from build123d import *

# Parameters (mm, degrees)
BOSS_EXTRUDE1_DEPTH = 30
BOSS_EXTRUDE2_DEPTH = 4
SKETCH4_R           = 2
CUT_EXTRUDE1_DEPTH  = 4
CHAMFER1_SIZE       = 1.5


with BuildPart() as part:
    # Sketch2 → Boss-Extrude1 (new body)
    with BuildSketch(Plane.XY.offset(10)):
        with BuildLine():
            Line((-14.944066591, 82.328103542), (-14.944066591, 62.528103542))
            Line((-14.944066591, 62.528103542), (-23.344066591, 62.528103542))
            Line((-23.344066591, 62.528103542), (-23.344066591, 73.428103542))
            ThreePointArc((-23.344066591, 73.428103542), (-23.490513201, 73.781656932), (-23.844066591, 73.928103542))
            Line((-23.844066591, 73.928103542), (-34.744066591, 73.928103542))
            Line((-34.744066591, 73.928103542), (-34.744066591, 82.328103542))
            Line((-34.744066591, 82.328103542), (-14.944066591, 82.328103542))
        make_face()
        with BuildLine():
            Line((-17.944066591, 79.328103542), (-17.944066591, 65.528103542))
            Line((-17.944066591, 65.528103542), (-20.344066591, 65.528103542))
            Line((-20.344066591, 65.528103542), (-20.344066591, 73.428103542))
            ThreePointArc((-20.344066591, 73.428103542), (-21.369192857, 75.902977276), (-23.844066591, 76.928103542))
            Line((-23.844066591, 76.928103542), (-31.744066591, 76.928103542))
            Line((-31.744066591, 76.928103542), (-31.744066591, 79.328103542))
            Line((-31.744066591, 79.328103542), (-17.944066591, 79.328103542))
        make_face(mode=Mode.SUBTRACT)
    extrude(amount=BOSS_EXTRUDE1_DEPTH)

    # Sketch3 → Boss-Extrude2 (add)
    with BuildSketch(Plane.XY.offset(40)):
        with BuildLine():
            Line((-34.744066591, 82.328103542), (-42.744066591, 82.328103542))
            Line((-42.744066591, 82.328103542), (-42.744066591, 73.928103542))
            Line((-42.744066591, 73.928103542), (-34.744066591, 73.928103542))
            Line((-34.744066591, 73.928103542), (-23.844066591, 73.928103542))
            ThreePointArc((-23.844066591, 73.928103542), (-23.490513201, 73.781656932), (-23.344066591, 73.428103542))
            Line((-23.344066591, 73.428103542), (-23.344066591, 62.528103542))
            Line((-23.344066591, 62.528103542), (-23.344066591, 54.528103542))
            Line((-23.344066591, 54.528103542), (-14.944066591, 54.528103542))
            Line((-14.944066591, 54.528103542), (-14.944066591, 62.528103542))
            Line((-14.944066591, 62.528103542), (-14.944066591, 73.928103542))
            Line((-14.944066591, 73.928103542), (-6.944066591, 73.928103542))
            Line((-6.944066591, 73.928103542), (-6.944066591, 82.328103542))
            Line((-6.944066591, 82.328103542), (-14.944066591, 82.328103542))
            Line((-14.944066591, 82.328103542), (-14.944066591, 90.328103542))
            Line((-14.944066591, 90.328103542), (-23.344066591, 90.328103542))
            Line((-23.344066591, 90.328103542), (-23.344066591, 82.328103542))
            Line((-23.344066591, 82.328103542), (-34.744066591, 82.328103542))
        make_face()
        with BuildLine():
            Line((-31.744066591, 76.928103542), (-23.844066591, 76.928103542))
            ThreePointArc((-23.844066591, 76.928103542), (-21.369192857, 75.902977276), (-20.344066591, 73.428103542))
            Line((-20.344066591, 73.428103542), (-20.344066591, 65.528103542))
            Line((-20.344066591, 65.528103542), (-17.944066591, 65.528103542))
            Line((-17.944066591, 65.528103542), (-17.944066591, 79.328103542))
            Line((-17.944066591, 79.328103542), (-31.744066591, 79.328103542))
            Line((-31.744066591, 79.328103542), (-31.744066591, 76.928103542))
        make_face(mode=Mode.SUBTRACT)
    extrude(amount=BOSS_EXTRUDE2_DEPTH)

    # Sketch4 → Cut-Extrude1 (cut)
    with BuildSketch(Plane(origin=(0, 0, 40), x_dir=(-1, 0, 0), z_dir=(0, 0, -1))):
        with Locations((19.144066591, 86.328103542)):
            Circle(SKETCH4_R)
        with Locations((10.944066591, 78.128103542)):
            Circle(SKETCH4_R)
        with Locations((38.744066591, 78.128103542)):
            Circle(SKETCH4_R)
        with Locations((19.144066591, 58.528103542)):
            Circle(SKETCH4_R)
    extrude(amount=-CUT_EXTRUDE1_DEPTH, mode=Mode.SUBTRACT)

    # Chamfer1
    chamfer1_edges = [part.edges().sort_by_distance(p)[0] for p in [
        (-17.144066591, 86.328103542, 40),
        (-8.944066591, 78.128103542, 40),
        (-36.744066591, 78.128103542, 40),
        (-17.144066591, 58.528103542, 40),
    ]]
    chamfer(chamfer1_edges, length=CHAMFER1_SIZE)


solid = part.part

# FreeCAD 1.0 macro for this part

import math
import FreeCAD as App
import Part
import Sketcher
from FreeCAD import Vector


def edges_at(feature, points):
    """Names of the edges that pass closest to the given points."""
    edges = feature.Shape.Edges
    near = lambda p: min(range(len(edges)), key=lambda i: edges[i].distToShape(Part.Vertex(*p))[0])
    return sorted({f"Edge{near(p) + 1}" for p in points})

doc = App.newDocument("Part")
params = doc.addObject("Spreadsheet::Sheet", "Params")
for row, (alias, value) in enumerate([
    ("sketch1_radius", "0.5 mm"),
    ("sketch1_radius2", "3.5 mm"),
    ("sketch1_width", "19.8 mm"),
    ("sketch1_width2", "10.9 mm"),
    ("sketch1_width3", "2.4 mm"),
    ("pad1_length", "30 mm"),
    ("sketch2_radius", "0.5 mm"),
    ("sketch2_radius2", "3.5 mm"),
    ("sketch2_width", "8 mm"),
    ("sketch2_width2", "18.9 mm"),
    ("sketch2_width3", "8.4 mm"),
    ("pad2_length", "4 mm"),
    ("sketch3_diameter", "4 mm"),
    ("pocket1_length", "4 mm"),
    ("chamfer_size", "1.5 mm"),
], start=1):
    params.set(f"A{row}", alias)
    params.set(f"B{row}", "=" + value)
    params.setAlias(f"B{row}", alias)

body = doc.addObject("PartDesign::Body", "Body")

# Sketch on XY plane
sketch1 = body.newObject("Sketcher::SketchObject", "Sketch")
sketch1.AttachmentSupport = (doc.getObject("XY_Plane"), [""])
sketch1.MapMode = "FlatFace"
sketch1.AttachmentOffset = App.Placement(Vector(0, 0, 10), App.Rotation())
sketch1.addGeometry(Part.LineSegment(Vector(-14.9, 62.5, 0), Vector(-14.9, 82.3, 0)), False)
sketch1.addGeometry(Part.LineSegment(Vector(-14.9, 82.3, 0), Vector(-34.7, 82.3, 0)), False)
sketch1.addGeometry(Part.LineSegment(Vector(-34.7, 82.3, 0), Vector(-34.7, 73.9, 0)), False)
sketch1.addGeometry(Part.LineSegment(Vector(-34.7, 73.9, 0), Vector(-23.8, 73.9, 0)), False)
sketch1.addGeometry(Part.ArcOfCircle(Part.Circle(Vector(-23.8, 73.4, 0), Vector(0, 0, 1), 0.5), math.radians(0), math.radians(90)), False)
sketch1.addGeometry(Part.LineSegment(Vector(-23.3, 73.4, 0), Vector(-23.3, 62.5, 0)), False)
sketch1.addGeometry(Part.LineSegment(Vector(-23.3, 62.5, 0), Vector(-14.9, 62.5, 0)), False)
sketch1.addGeometry(Part.LineSegment(Vector(-17.9, 79.3, 0), Vector(-17.9, 65.5, 0)), False)
sketch1.addGeometry(Part.LineSegment(Vector(-17.9, 65.5, 0), Vector(-20.3, 65.5, 0)), False)
sketch1.addGeometry(Part.LineSegment(Vector(-20.3, 65.5, 0), Vector(-20.3, 73.4, 0)), False)
sketch1.addGeometry(Part.ArcOfCircle(Part.Circle(Vector(-23.8, 73.4, 0), Vector(0, 0, 1), 3.5), math.radians(0), math.radians(90)), False)
sketch1.addGeometry(Part.LineSegment(Vector(-23.8, 76.9, 0), Vector(-31.7, 76.9, 0)), False)
sketch1.addGeometry(Part.LineSegment(Vector(-31.7, 76.9, 0), Vector(-31.7, 79.3, 0)), False)
sketch1.addGeometry(Part.LineSegment(Vector(-31.7, 79.3, 0), Vector(-17.9, 79.3, 0)), False)
sketch1.addConstraint(Sketcher.Constraint("Coincident", 0, 2, 1, 1))
sketch1.addConstraint(Sketcher.Constraint("Coincident", 1, 2, 2, 1))
sketch1.addConstraint(Sketcher.Constraint("Coincident", 2, 2, 3, 1))
sketch1.addConstraint(Sketcher.Constraint("Tangent", 3, 2, 4, 2))
sketch1.addConstraint(Sketcher.Constraint("Tangent", 4, 1, 5, 1))
sketch1.addConstraint(Sketcher.Constraint("Coincident", 5, 2, 6, 1))
sketch1.addConstraint(Sketcher.Constraint("Coincident", 6, 2, 0, 1))
sketch1.addConstraint(Sketcher.Constraint("Coincident", 7, 2, 8, 1))
sketch1.addConstraint(Sketcher.Constraint("Coincident", 8, 2, 9, 1))
sketch1.addConstraint(Sketcher.Constraint("Tangent", 9, 2, 10, 1))
sketch1.addConstraint(Sketcher.Constraint("Tangent", 10, 2, 11, 1))
sketch1.addConstraint(Sketcher.Constraint("Coincident", 11, 2, 12, 1))
sketch1.addConstraint(Sketcher.Constraint("Coincident", 12, 2, 13, 1))
sketch1.addConstraint(Sketcher.Constraint("Coincident", 13, 2, 7, 1))
sketch1.addConstraint(Sketcher.Constraint("Vertical", 0))
sketch1.addConstraint(Sketcher.Constraint("Horizontal", 1))
sketch1.addConstraint(Sketcher.Constraint("Vertical", 2))
sketch1.addConstraint(Sketcher.Constraint("Horizontal", 3))
sketch1.addConstraint(Sketcher.Constraint("Vertical", 5))
sketch1.addConstraint(Sketcher.Constraint("Horizontal", 6))
sketch1.addConstraint(Sketcher.Constraint("Vertical", 7))
sketch1.addConstraint(Sketcher.Constraint("Horizontal", 8))
sketch1.addConstraint(Sketcher.Constraint("Vertical", 9))
sketch1.addConstraint(Sketcher.Constraint("Horizontal", 11))
sketch1.addConstraint(Sketcher.Constraint("Vertical", 12))
sketch1.addConstraint(Sketcher.Constraint("Horizontal", 13))
sketch1.addConstraint(Sketcher.Constraint("Coincident", 10, 3, 4, 3))
sketch1.addConstraint(Sketcher.Constraint("Equal", 1, 0))
sketch1.addConstraint(Sketcher.Constraint("Equal", 6, 2))
sketch1.addConstraint(Sketcher.Constraint("Equal", 13, 7))
sketch1.addConstraint(Sketcher.Constraint("Equal", 11, 9))
sketch1.addConstraint(Sketcher.Constraint("Radius", 4, 0.5))
sketch1.addConstraint(Sketcher.Constraint("Radius", 10, 3.5))
sketch1.addConstraint(Sketcher.Constraint("DistanceX", 1, 2, 1, 1, 19.8))
sketch1.addConstraint(Sketcher.Constraint("DistanceX", 3, 1, 3, 2, 10.9))
sketch1.addConstraint(Sketcher.Constraint("DistanceX", 8, 2, 8, 1, 2.4))
sketch1.addConstraint(Sketcher.Constraint("DistanceX", 11, 2, 11, 1, 7.9))
sketch1.addConstraint(Sketcher.Constraint("DistanceX", 4, 3, -1, 1, 23.844067))
sketch1.addConstraint(Sketcher.Constraint("DistanceY", -1, 1, 4, 3, 73.428104))
sketch1.setExpression("Constraints[31]", "Params.sketch1_radius")
sketch1.setExpression("Constraints[32]", "Params.sketch1_radius2")
sketch1.setExpression("Constraints[33]", "Params.sketch1_width")
sketch1.setExpression("Constraints[34]", "Params.sketch1_width2")
sketch1.setExpression("Constraints[35]", "Params.sketch1_width3")
pad1 = body.newObject("PartDesign::Pad", "Pad")
pad1.Profile = sketch1
pad1.setExpression("Length", "Params.pad1_length")

# Sketch on XY plane
sketch2 = body.newObject("Sketcher::SketchObject", "Sketch001")
sketch2.AttachmentSupport = (doc.getObject("XY_Plane"), [""])
sketch2.MapMode = "FlatFace"
sketch2.AttachmentOffset = App.Placement(Vector(0, 0, 40), App.Rotation())
sketch2.addGeometry(Part.LineSegment(Vector(-42.7, 82.3, 0), Vector(-42.7, 73.9, 0)), False)
sketch2.addGeometry(Part.LineSegment(Vector(-42.7, 73.9, 0), Vector(-23.8, 73.9, 0)), False)
sketch2.addGeometry(Part.ArcOfCircle(Part.Circle(Vector(-23.8, 73.4, 0), Vector(0, 0, 1), 0.5), math.radians(0), math.radians(90)), False)
sketch2.addGeometry(Part.LineSegment(Vector(-23.3, 73.4, 0), Vector(-23.3, 54.5, 0)), False)
sketch2.addGeometry(Part.LineSegment(Vector(-23.3, 54.5, 0), Vector(-14.9, 54.5, 0)), False)
sketch2.addGeometry(Part.LineSegment(Vector(-14.9, 54.5, 0), Vector(-14.9, 73.9, 0)), False)
sketch2.addGeometry(Part.LineSegment(Vector(-14.9, 73.9, 0), Vector(-6.9, 73.9, 0)), False)
sketch2.addGeometry(Part.LineSegment(Vector(-6.9, 73.9, 0), Vector(-6.9, 82.3, 0)), False)
sketch2.addGeometry(Part.LineSegment(Vector(-6.9, 82.3, 0), Vector(-14.9, 82.3, 0)), False)
sketch2.addGeometry(Part.LineSegment(Vector(-14.9, 82.3, 0), Vector(-14.9, 90.3, 0)), False)
sketch2.addGeometry(Part.LineSegment(Vector(-14.9, 90.3, 0), Vector(-23.3, 90.3, 0)), False)
sketch2.addGeometry(Part.LineSegment(Vector(-23.3, 90.3, 0), Vector(-23.3, 82.3, 0)), False)
sketch2.addGeometry(Part.LineSegment(Vector(-23.3, 82.3, 0), Vector(-42.7, 82.3, 0)), False)
sketch2.addGeometry(Part.LineSegment(Vector(-23.8, 76.9, 0), Vector(-31.7, 76.9, 0)), False)
sketch2.addGeometry(Part.LineSegment(Vector(-31.7, 76.9, 0), Vector(-31.7, 79.3, 0)), False)
sketch2.addGeometry(Part.LineSegment(Vector(-31.7, 79.3, 0), Vector(-17.9, 79.3, 0)), False)
sketch2.addGeometry(Part.LineSegment(Vector(-17.9, 79.3, 0), Vector(-17.9, 65.5, 0)), False)
sketch2.addGeometry(Part.LineSegment(Vector(-17.9, 65.5, 0), Vector(-20.3, 65.5, 0)), False)
sketch2.addGeometry(Part.LineSegment(Vector(-20.3, 65.5, 0), Vector(-20.3, 73.4, 0)), False)
sketch2.addGeometry(Part.ArcOfCircle(Part.Circle(Vector(-23.8, 73.4, 0), Vector(0, 0, 1), 3.5), math.radians(0), math.radians(90)), False)
sketch2.addConstraint(Sketcher.Constraint("Coincident", 0, 2, 1, 1))
sketch2.addConstraint(Sketcher.Constraint("Tangent", 1, 2, 2, 2))
sketch2.addConstraint(Sketcher.Constraint("Tangent", 2, 1, 3, 1))
sketch2.addConstraint(Sketcher.Constraint("Coincident", 3, 2, 4, 1))
sketch2.addConstraint(Sketcher.Constraint("Coincident", 4, 2, 5, 1))
sketch2.addConstraint(Sketcher.Constraint("Coincident", 5, 2, 6, 1))
sketch2.addConstraint(Sketcher.Constraint("Coincident", 6, 2, 7, 1))
sketch2.addConstraint(Sketcher.Constraint("Coincident", 7, 2, 8, 1))
sketch2.addConstraint(Sketcher.Constraint("Coincident", 8, 2, 9, 1))
sketch2.addConstraint(Sketcher.Constraint("Coincident", 9, 2, 10, 1))
sketch2.addConstraint(Sketcher.Constraint("Coincident", 10, 2, 11, 1))
sketch2.addConstraint(Sketcher.Constraint("Coincident", 11, 2, 12, 1))
sketch2.addConstraint(Sketcher.Constraint("Coincident", 12, 2, 0, 1))
sketch2.addConstraint(Sketcher.Constraint("Coincident", 13, 2, 14, 1))
sketch2.addConstraint(Sketcher.Constraint("Coincident", 14, 2, 15, 1))
sketch2.addConstraint(Sketcher.Constraint("Coincident", 15, 2, 16, 1))
sketch2.addConstraint(Sketcher.Constraint("Coincident", 16, 2, 17, 1))
sketch2.addConstraint(Sketcher.Constraint("Coincident", 17, 2, 18, 1))
sketch2.addConstraint(Sketcher.Constraint("Tangent", 18, 2, 19, 1))
sketch2.addConstraint(Sketcher.Constraint("Tangent", 19, 2, 13, 1))
sketch2.addConstraint(Sketcher.Constraint("Vertical", 0))
sketch2.addConstraint(Sketcher.Constraint("Horizontal", 1))
sketch2.addConstraint(Sketcher.Constraint("Vertical", 3))
sketch2.addConstraint(Sketcher.Constraint("Horizontal", 4))
sketch2.addConstraint(Sketcher.Constraint("Vertical", 5))
sketch2.addConstraint(Sketcher.Constraint("Horizontal", 6))
sketch2.addConstraint(Sketcher.Constraint("Vertical", 7))
sketch2.addConstraint(Sketcher.Constraint("Horizontal", 8))
sketch2.addConstraint(Sketcher.Constraint("Vertical", 9))
sketch2.addConstraint(Sketcher.Constraint("Horizontal", 10))
sketch2.addConstraint(Sketcher.Constraint("Vertical", 11))
sketch2.addConstraint(Sketcher.Constraint("Horizontal", 12))
sketch2.addConstraint(Sketcher.Constraint("Horizontal", 13))
sketch2.addConstraint(Sketcher.Constraint("Vertical", 14))
sketch2.addConstraint(Sketcher.Constraint("Horizontal", 15))
sketch2.addConstraint(Sketcher.Constraint("Vertical", 16))
sketch2.addConstraint(Sketcher.Constraint("Horizontal", 17))
sketch2.addConstraint(Sketcher.Constraint("Vertical", 18))
sketch2.addConstraint(Sketcher.Constraint("Coincident", 19, 3, 2, 3))
sketch2.addConstraint(Sketcher.Constraint("Horizontal", 1, 2, 5, 2))
sketch2.addConstraint(Sketcher.Constraint("Horizontal", 8, 2, 11, 2))
sketch2.addConstraint(Sketcher.Constraint("Vertical", 5, 2, 8, 2))
sketch2.addConstraint(Sketcher.Constraint("Vertical", 3, 2, 10, 2))
sketch2.addConstraint(Sketcher.Constraint("Equal", 10, 0))
sketch2.addConstraint(Sketcher.Constraint("Equal", 1, 3))
sketch2.addConstraint(Sketcher.Constraint("Equal", 8, 9))
sketch2.addConstraint(Sketcher.Constraint("Equal", 17, 14))
sketch2.addConstraint(Sketcher.Constraint("Equal", 15, 16))
sketch2.addConstraint(Sketcher.Constraint("Radius", 2, 0.5))
sketch2.addConstraint(Sketcher.Constraint("Radius", 19, 3.5))
sketch2.addConstraint(Sketcher.Constraint("DistanceX", 6, 1, 6, 2, 8.0))
sketch2.addConstraint(Sketcher.Constraint("DistanceX", 1, 1, 1, 2, 18.9))
sketch2.addConstraint(Sketcher.Constraint("DistanceX", 4, 1, 4, 2, 8.4))
sketch2.addConstraint(Sketcher.Constraint("DistanceX", 13, 2, 13, 1, 7.9))
sketch2.addConstraint(Sketcher.Constraint("DistanceX", 15, 1, 15, 2, 13.8))
sketch2.addConstraint(Sketcher.Constraint("DistanceX", 2, 3, -1, 1, 23.844067))
sketch2.addConstraint(Sketcher.Constraint("DistanceY", -1, 1, 2, 3, 73.428104))
sketch2.setExpression("Constraints[48]", "Params.sketch2_radius")
sketch2.setExpression("Constraints[49]", "Params.sketch2_radius2")
sketch2.setExpression("Constraints[50]", "Params.sketch2_width")
sketch2.setExpression("Constraints[51]", "Params.sketch2_width2")
sketch2.setExpression("Constraints[52]", "Params.sketch2_width3")
pad2 = body.newObject("PartDesign::Pad", "Pad001")
pad2.Profile = sketch2
pad2.setExpression("Length", "Params.pad2_length")

# Sketch on XY plane
sketch3 = body.newObject("Sketcher::SketchObject", "Sketch002")
sketch3.AttachmentSupport = (doc.getObject("XY_Plane"), [""])
sketch3.MapMode = "FlatFace"
sketch3.AttachmentOffset = App.Placement(Vector(0, 0, 40), App.Rotation())
sketch3.addGeometry(Part.Circle(Vector(-19.1, 86.3, 0), Vector(0, 0, 1), 2), False)
sketch3.addGeometry(Part.Circle(Vector(-10.9, 78.1, 0), Vector(0, 0, 1), 2), False)
sketch3.addGeometry(Part.Circle(Vector(-38.7, 78.1, 0), Vector(0, 0, 1), 2), False)
sketch3.addGeometry(Part.Circle(Vector(-19.1, 58.5, 0), Vector(0, 0, 1), 2), False)
sketch3.addConstraint(Sketcher.Constraint("Equal", 0, 1))
sketch3.addConstraint(Sketcher.Constraint("Equal", 1, 2))
sketch3.addConstraint(Sketcher.Constraint("Equal", 2, 3))
sketch3.addConstraint(Sketcher.Constraint("Horizontal", 1, 3, 2, 3))
sketch3.addConstraint(Sketcher.Constraint("Vertical", 0, 3, 3, 3))
sketch3.addConstraint(Sketcher.Constraint("Diameter", 0, 4.0))
sketch3.addConstraint(Sketcher.Constraint("DistanceX", 0, 3, 1, 3, 8.2))
sketch3.addConstraint(Sketcher.Constraint("DistanceY", 1, 3, 0, 3, 8.2))
sketch3.addConstraint(Sketcher.Constraint("DistanceX", 2, 3, 0, 3, 19.6))
sketch3.addConstraint(Sketcher.Constraint("DistanceY", 3, 3, 1, 3, 19.6))
sketch3.addConstraint(Sketcher.Constraint("DistanceX", 0, 3, -1, 1, 19.144067))
sketch3.addConstraint(Sketcher.Constraint("DistanceY", -1, 1, 0, 3, 86.328104))
sketch3.setExpression("Constraints[5]", "Params.sketch3_diameter")
pocket1 = body.newObject("PartDesign::Pocket", "Pocket")
pocket1.Profile = sketch3
pocket1.setExpression("Length", "Params.pocket1_length")
pocket1.Reversed = True
doc.recompute()

chamfer = body.newObject("PartDesign::Chamfer", "Chamfer")
chamfer.Base = (pocket1, edges_at(pocket1, [
    (-17.144, 86.328, 40),
    (-8.944, 78.128, 40),
    (-36.744, 78.128, 40),
    (-17.144, 58.528, 40),
]))
chamfer.setExpression("Size", "Params.chamfer_size")

doc.recompute()
